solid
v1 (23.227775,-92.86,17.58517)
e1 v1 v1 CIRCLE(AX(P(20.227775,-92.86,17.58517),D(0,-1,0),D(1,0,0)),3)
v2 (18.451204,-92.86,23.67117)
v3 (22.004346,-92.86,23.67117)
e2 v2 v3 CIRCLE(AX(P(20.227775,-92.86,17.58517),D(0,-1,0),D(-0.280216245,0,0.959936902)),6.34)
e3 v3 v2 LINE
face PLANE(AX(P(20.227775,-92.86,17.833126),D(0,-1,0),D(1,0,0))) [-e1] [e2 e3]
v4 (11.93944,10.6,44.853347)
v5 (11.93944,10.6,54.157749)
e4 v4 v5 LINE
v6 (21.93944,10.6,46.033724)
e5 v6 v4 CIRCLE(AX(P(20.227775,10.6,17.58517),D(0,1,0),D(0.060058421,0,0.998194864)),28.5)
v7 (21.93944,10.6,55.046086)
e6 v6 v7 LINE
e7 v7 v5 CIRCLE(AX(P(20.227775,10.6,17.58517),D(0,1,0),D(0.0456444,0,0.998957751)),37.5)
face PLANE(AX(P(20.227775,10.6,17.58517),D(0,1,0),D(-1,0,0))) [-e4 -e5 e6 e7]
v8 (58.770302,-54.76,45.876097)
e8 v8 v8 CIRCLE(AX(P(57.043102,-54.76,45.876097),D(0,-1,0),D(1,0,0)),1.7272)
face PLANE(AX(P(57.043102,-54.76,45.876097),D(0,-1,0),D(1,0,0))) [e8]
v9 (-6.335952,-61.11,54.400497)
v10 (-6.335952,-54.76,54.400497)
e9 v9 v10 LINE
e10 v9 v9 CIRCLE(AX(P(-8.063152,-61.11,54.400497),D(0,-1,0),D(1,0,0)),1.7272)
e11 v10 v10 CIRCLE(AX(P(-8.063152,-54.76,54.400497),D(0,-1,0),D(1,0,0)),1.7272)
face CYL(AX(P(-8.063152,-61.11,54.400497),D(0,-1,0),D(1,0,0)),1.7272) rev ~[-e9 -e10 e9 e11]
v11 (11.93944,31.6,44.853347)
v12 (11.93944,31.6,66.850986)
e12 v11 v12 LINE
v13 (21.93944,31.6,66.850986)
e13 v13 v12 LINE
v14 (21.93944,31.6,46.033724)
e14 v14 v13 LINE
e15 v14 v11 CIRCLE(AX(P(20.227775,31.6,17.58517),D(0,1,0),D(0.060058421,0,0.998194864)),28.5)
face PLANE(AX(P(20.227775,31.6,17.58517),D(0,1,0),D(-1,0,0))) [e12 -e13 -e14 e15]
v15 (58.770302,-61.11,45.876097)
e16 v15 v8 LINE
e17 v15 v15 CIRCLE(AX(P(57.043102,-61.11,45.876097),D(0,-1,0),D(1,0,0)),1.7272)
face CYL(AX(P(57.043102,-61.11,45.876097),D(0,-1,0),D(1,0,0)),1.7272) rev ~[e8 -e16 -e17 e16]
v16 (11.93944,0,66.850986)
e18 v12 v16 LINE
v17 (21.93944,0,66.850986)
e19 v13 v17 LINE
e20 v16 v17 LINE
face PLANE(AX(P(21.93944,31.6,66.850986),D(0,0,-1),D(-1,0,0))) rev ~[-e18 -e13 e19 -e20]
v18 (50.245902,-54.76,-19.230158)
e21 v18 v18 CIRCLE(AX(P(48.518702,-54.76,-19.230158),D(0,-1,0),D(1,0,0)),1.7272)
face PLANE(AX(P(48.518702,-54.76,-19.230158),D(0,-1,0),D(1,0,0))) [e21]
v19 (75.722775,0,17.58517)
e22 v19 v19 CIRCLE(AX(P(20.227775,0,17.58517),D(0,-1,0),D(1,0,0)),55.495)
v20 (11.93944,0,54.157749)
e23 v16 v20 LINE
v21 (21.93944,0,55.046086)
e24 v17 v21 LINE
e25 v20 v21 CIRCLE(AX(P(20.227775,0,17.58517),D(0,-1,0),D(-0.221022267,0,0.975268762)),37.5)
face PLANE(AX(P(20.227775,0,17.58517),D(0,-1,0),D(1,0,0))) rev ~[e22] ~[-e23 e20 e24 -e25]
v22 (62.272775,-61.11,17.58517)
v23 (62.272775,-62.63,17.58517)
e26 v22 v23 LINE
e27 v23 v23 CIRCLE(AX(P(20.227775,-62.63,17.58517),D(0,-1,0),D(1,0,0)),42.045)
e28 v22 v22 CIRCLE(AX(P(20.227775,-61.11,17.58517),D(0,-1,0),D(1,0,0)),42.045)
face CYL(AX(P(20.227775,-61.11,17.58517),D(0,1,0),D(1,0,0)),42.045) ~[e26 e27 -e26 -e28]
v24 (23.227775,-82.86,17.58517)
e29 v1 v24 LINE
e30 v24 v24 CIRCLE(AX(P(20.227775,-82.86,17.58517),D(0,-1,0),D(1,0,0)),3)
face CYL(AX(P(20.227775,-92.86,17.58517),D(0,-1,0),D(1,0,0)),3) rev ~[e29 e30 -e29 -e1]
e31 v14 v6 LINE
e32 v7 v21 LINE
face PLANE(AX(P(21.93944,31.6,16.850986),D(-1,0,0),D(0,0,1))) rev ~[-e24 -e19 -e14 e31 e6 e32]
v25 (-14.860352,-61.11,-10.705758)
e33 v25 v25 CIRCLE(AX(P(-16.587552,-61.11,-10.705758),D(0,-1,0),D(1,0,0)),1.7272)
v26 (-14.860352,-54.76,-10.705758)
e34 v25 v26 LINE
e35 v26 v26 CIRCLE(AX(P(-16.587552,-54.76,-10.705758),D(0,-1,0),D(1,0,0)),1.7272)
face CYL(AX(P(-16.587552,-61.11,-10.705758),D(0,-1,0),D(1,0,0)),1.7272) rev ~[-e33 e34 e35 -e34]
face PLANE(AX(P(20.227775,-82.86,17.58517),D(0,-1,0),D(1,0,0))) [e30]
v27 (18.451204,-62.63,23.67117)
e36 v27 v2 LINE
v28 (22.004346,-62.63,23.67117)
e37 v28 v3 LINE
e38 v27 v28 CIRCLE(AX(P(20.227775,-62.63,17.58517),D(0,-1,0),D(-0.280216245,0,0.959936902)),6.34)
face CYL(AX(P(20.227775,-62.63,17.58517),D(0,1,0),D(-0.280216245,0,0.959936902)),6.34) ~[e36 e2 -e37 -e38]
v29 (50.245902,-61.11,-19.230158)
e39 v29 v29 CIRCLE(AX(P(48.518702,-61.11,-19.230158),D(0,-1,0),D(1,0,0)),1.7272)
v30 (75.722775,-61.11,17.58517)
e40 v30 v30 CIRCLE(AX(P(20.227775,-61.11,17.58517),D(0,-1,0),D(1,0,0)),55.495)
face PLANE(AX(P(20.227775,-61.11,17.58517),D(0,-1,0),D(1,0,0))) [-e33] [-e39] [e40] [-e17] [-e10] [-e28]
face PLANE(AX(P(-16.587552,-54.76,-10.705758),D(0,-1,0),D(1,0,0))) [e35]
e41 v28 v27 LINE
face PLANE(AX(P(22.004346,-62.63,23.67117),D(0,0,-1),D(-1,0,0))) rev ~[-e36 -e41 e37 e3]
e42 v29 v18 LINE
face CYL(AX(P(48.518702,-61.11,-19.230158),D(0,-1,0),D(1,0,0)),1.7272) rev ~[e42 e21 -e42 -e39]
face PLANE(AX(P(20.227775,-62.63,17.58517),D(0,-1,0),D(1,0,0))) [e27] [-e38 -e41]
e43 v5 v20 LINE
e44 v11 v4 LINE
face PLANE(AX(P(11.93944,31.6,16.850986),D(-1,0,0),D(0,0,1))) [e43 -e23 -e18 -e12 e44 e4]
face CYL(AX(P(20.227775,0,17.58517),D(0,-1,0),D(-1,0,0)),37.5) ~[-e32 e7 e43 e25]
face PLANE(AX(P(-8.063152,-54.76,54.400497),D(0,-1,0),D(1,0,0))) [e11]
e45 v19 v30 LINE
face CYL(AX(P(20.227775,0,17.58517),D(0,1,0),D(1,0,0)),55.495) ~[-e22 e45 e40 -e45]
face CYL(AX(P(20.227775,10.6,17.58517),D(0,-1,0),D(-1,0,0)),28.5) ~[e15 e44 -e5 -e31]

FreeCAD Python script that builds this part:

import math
import FreeCAD as App
import Part
import Sketcher
from FreeCAD import Vector

doc = App.newDocument("Part")
body = doc.addObject("PartDesign::Body", "Body")

# Sketch on XZ plane
sketch1 = body.newObject("Sketcher::SketchObject", "Sketch")
sketch1.AttachmentSupport = (doc.getObject("XZ_Plane"), [""])
sketch1.MapMode = "FlatFace"
sketch1.addGeometry(Part.Circle(Vector(20, 18, 0), Vector(0, 0, 1), 55), False)
sketch1.addConstraint(Sketcher.Constraint("Diameter", 0, 110.99))
sketch1.addConstraint(Sketcher.Constraint("DistanceY", -1, 1, 0, 3, 17.58517))
sketch1.addConstraint(Sketcher.Constraint("DistanceX", -1, 1, 0, 3, 20.227775))
pad1 = body.newObject("PartDesign::Pad", "Pad")
pad1.Profile = sketch1
pad1.Length = 61.11

# Sketch on XZ plane
sketch2 = body.newObject("Sketcher::SketchObject", "Sketch001")
sketch2.AttachmentSupport = (doc.getObject("XZ_Plane"), [""])
sketch2.MapMode = "FlatFace"
sketch2.AttachmentOffset = App.Placement(Vector(0, 0, 61.11), App.Rotation())
sketch2.addGeometry(Part.Circle(Vector(20, 18, 0), Vector(0, 0, 1), 42), False)
sketch2.addConstraint(Sketcher.Constraint("Diameter", 0, 84.09))
sketch2.addConstraint(Sketcher.Constraint("DistanceY", -1, 1, 0, 3, 17.58517))
sketch2.addConstraint(Sketcher.Constraint("DistanceX", -1, 1, 0, 3, 20.227775))
pad2 = body.newObject("PartDesign::Pad", "Pad001")
pad2.Profile = sketch2
pad2.Length = 1.52

# Sketch on XZ plane
sketch3 = body.newObject("Sketcher::SketchObject", "Sketch002")
sketch3.AttachmentSupport = (doc.getObject("XZ_Plane"), [""])
sketch3.MapMode = "FlatFace"
sketch3.AttachmentOffset = App.Placement(Vector(0, 0, 62.63), App.Rotation())
sketch3.addGeometry(Part.LineSegment(Vector(22, 23.7, 0), Vector(18.5, 23.7, 0)), False)
sketch3.addGeometry(Part.ArcOfCircle(Part.Circle(Vector(20.2, 17.6, 0), Vector(0, 0, 1), 6.3), math.radians(106), math.radians(434)), False)
sketch3.addConstraint(Sketcher.Constraint("Coincident", 0, 1, 1, 2))
sketch3.addConstraint(Sketcher.Constraint("Coincident", 1, 1, 0, 2))
sketch3.addConstraint(Sketcher.Constraint("Horizontal", 0))
sketch3.addConstraint(Sketcher.Constraint("Radius", 1, 6.34))
sketch3.addConstraint(Sketcher.Constraint("DistanceY", 1, 3, 0, 1, 6.086))
sketch3.addConstraint(Sketcher.Constraint("DistanceY", -1, 1, 1, 3, 17.58517))
sketch3.addConstraint(Sketcher.Constraint("DistanceX", -1, 1, 1, 3, 20.227775))
pad3 = body.newObject("PartDesign::Pad", "Pad002")
pad3.Profile = sketch3
pad3.Type = "TwoLengths"
pad3.Length = 30.23
pad3.Length2 = 92.79

# Sketch on XZ plane
sketch4 = body.newObject("Sketcher::SketchObject", "Sketch003")
sketch4.AttachmentSupport = (doc.getObject("XZ_Plane"), [""])
sketch4.MapMode = "FlatFace"
sketch4.addGeometry(Part.Circle(Vector(20, 18, 0), Vector(0, 0, 1), 38), False)
sketch4.addConstraint(Sketcher.Constraint("Diameter", 0, 75.0))
sketch4.addConstraint(Sketcher.Constraint("DistanceY", -1, 1, 0, 3, 17.58517))
sketch4.addConstraint(Sketcher.Constraint("DistanceX", -1, 1, 0, 3, 20.227775))
pad4 = body.newObject("PartDesign::Pad", "Pad003")
pad4.Profile = sketch4
pad4.Length = 10.6
pad4.Reversed = True

# Sketch on XZ plane
sketch5 = body.newObject("Sketcher::SketchObject", "Sketch004")
sketch5.AttachmentSupport = (doc.getObject("XZ_Plane"), [""])
sketch5.MapMode = "FlatFace"
sketch5.AttachmentOffset = App.Placement(Vector(0, 0, -10.6), App.Rotation())
sketch5.addGeometry(Part.Circle(Vector(20, 18, 0), Vector(0, 0, 1), 28), False)
sketch5.addConstraint(Sketcher.Constraint("Diameter", 0, 57.0))
sketch5.addConstraint(Sketcher.Constraint("DistanceY", -1, 1, 0, 3, 17.58517))
sketch5.addConstraint(Sketcher.Constraint("DistanceX", -1, 1, 0, 3, 20.227775))
pad5 = body.newObject("PartDesign::Pad", "Pad004")
pad5.Profile = sketch5
pad5.Length = 21
pad5.Reversed = True

# Sketch on XZ plane
sketch6 = body.newObject("Sketcher::SketchObject", "Sketch005")
sketch6.AttachmentSupport = (doc.getObject("XZ_Plane"), [""])
sketch6.MapMode = "FlatFace"
sketch6.AttachmentOffset = App.Placement(Vector(0, 0, 61.11), App.Rotation())
sketch6.addGeometry(Part.Circle(Vector(57, 45.9, 0), Vector(0, 0, 1), 1.7), False)
sketch6.addGeometry(Part.Circle(Vector(-8.1, 54.4, 0), Vector(0, 0, 1), 1.7), False)
sketch6.addGeometry(Part.Circle(Vector(-16.6, -10.7, 0), Vector(0, 0, 1), 1.7), False)
sketch6.addGeometry(Part.Circle(Vector(48.5, -19.2, 0), Vector(0, 0, 1), 1.7), False)
sketch6.addConstraint(Sketcher.Constraint("Equal", 0, 1))
sketch6.addConstraint(Sketcher.Constraint("Equal", 1, 2))
sketch6.addConstraint(Sketcher.Constraint("Equal", 2, 3))
sketch6.addConstraint(Sketcher.Constraint("Diameter", 0, 3.4544))
sketch6.addConstraint(Sketcher.Constraint("DistanceX", -1, 1, 0, 3, 57.043102))
sketch6.addConstraint(Sketcher.Constraint("DistanceX", -1, 1, 3, 3, 48.518702))
sketch6.addConstraint(Sketcher.Constraint("DistanceY", 0, 3, 1, 3, 8.5244))
sketch6.addConstraint(Sketcher.Constraint("DistanceX", 2, 3, 1, 3, 8.5244))
sketch6.addConstraint(Sketcher.Constraint("DistanceY", 3, 3, 2, 3, 8.5244))
sketch6.addConstraint(Sketcher.Constraint("DistanceX", 2, 3, -1, 1, 16.587552))
sketch6.addConstraint(Sketcher.Constraint("DistanceY", -1, 1, 0, 3, 45.876097))
sketch6.addConstraint(Sketcher.Constraint("DistanceY", 2, 3, -1, 1, 10.705758))
pocket1 = body.newObject("PartDesign::Pocket", "Pocket")
pocket1.Profile = sketch6
pocket1.Length = 6.35

# Sketch on XZ plane
sketch7 = body.newObject("Sketcher::SketchObject", "Sketch006")
sketch7.AttachmentSupport = (doc.getObject("XZ_Plane"), [""])
sketch7.MapMode = "FlatFace"
sketch7.AttachmentOffset = App.Placement(Vector(0, 0, -31.6), App.Rotation())
sketch7.addGeometry(Part.LineSegment(Vector(22, 67, 0), Vector(22, 17, 0)), False)
sketch7.addGeometry(Part.LineSegment(Vector(22, 17, 0), Vector(12, 17, 0)), False)
sketch7.addGeometry(Part.LineSegment(Vector(12, 17, 0), Vector(12, 67, 0)), False)
sketch7.addGeometry(Part.LineSegment(Vector(12, 67, 0), Vector(22, 67, 0)), False)
sketch7.addConstraint(Sketcher.Constraint("Coincident", 0, 2, 1, 1))
sketch7.addConstraint(Sketcher.Constraint("Coincident", 1, 2, 2, 1))
sketch7.addConstraint(Sketcher.Constraint("Coincident", 2, 2, 3, 1))
sketch7.addConstraint(Sketcher.Constraint("Coincident", 3, 2, 0, 1))
sketch7.addConstraint(Sketcher.Constraint("Vertical", 0))
sketch7.addConstraint(Sketcher.Constraint("Horizontal", 1))
sketch7.addConstraint(Sketcher.Constraint("Vertical", 2))
sketch7.addConstraint(Sketcher.Constraint("Horizontal", 3))
sketch7.addConstraint(Sketcher.Constraint("DistanceX", 1, 2, 1, 1, 10.0))
sketch7.addConstraint(Sketcher.Constraint("DistanceY", 0, 2, 0, 1, 50.0))
sketch7.addConstraint(Sketcher.Constraint("DistanceX", -1, 1, 0, 2, 21.93944))
sketch7.addConstraint(Sketcher.Constraint("DistanceY", -1, 1, 0, 2, 16.850986))
pad6 = body.newObject("PartDesign::Pad", "Pad005")
pad6.Profile = sketch7
pad6.Length = 40

# Sketch on XZ plane
sketch8 = body.newObject("Sketcher::SketchObject", "Sketch007")
sketch8.AttachmentSupport = (doc.getObject("XZ_Plane"), [""])
sketch8.MapMode = "FlatFace"
sketch8.AttachmentOffset = App.Placement(Vector(0, 0, 92.86), App.Rotation())
sketch8.addGeometry(Part.Circle(Vector(20.2, 17.6, 0), Vector(0, 0, 1), 3), False)
sketch8.addConstraint(Sketcher.Constraint("Diameter", 0, 6.0))
sketch8.addConstraint(Sketcher.Constraint("DistanceY", -1, 1, 0, 3, 17.58517))
sketch8.addConstraint(Sketcher.Constraint("DistanceX", -1, 1, 0, 3, 20.227775))
pocket2 = body.newObject("PartDesign::Pocket", "Pocket001")
pocket2.Profile = sketch8
pocket2.Length = 10

doc.recompute()
